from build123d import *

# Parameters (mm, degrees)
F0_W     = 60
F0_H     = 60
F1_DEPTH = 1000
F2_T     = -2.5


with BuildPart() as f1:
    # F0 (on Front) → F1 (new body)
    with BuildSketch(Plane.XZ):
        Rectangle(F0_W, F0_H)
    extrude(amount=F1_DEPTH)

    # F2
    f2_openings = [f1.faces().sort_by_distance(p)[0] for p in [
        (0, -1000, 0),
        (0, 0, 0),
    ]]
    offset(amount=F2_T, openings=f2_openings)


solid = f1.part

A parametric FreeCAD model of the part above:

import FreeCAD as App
import Part
import Sketcher
from FreeCAD import Vector


def faces_at(feature, points):
    """Names of the faces that lie closest to the given points."""
    faces = feature.Shape.Faces
    near = lambda p: min(range(len(faces)), key=lambda i: faces[i].distToShape(Part.Vertex(*p))[0])
    return sorted({f"Face{near(p) + 1}" for p in points})

doc = App.newDocument("Part")
body = doc.addObject("PartDesign::Body", "Body")

# Sketch on XZ plane
sketch1 = body.newObject("Sketcher::SketchObject", "Sketch")
sketch1.AttachmentSupport = (doc.getObject("XZ_Plane"), [""])
sketch1.MapMode = "FlatFace"
sketch1.addGeometry([
    Part.LineSegment(Vector(-30, 30, 0), Vector(-30, -30, 0)),
    Part.LineSegment(Vector(-30, -30, 0), Vector(30, -30, 0)),
    Part.LineSegment(Vector(30, -30, 0), Vector(30, 30, 0)),
    Part.LineSegment(Vector(30, 30, 0), Vector(-30, 30, 0)),
], False)
sketch1.addConstraint([
    Sketcher.Constraint("Coincident", 0, 2, 1, 1),
    Sketcher.Constraint("Coincident", 1, 2, 2, 1),
    Sketcher.Constraint("Coincident", 2, 2, 3, 1),
    Sketcher.Constraint("Coincident", 3, 2, 0, 1),
    Sketcher.Constraint("Vertical", 0),
    Sketcher.Constraint("Horizontal", 1),
    Sketcher.Constraint("Vertical", 2),
    Sketcher.Constraint("Horizontal", 3),
    Sketcher.Constraint("Symmetric", 0, 2, 2, 2, -1, 1),
    Sketcher.Constraint("Equal", 3, 0),
    Sketcher.Constraint("DistanceX", 1, 1, 1, 2, 60.0),
])
pad1 = body.newObject("PartDesign::Pad", "Pad")
pad1.Profile = sketch1
pad1.Length = 1000
doc.recompute()

thickness = body.newObject("PartDesign::Thickness", "Thickness")
thickness.Base = (pad1, faces_at(pad1, [(0, -1000, 0), (0, 0, 0)]))
thickness.Value = 2.5
thickness.Reversed = True
thickness.Join = "Arc"

doc.recompute()
